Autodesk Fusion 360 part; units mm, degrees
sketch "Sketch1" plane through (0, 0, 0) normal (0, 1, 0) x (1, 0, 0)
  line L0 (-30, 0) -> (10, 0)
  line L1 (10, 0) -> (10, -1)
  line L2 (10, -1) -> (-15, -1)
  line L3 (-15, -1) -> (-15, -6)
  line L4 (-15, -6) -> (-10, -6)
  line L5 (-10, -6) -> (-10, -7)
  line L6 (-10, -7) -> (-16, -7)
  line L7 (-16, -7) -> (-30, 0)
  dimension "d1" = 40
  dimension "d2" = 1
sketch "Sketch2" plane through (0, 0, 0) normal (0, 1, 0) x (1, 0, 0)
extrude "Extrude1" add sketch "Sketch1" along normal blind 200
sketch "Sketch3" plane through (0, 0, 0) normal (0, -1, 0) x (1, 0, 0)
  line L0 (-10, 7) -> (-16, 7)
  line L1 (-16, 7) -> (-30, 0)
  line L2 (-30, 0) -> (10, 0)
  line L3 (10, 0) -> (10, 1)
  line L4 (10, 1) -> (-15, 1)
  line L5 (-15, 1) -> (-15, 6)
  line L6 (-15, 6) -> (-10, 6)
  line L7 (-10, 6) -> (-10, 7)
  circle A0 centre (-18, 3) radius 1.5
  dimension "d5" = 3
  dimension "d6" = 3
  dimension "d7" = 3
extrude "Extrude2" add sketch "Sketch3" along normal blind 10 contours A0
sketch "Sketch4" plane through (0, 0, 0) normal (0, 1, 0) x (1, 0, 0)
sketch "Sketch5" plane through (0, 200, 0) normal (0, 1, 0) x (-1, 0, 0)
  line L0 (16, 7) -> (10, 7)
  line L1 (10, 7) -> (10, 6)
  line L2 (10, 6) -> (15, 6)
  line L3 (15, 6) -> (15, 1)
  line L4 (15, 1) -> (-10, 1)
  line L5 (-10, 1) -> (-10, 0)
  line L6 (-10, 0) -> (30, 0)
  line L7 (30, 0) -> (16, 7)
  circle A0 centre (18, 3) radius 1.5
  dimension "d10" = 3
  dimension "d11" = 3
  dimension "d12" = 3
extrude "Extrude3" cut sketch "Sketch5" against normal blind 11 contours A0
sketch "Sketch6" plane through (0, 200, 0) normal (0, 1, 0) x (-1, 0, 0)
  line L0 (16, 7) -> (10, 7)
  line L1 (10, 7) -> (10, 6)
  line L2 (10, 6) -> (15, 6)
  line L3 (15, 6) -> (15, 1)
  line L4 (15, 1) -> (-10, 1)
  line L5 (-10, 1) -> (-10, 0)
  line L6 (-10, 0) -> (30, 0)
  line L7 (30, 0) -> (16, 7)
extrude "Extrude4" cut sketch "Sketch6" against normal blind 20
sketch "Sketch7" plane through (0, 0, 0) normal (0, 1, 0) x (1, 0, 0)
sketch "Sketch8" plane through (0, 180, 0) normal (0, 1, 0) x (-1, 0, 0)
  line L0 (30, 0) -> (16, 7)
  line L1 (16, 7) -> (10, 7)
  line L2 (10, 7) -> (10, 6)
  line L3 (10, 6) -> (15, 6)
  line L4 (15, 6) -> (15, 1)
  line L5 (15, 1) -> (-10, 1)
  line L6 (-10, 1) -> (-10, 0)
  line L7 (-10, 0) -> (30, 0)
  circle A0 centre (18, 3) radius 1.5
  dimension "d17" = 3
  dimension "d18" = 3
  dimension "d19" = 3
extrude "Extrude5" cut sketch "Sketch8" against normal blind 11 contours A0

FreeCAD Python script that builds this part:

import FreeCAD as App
import Part
import Sketcher

V = App.Vector
Q = App.Units.Quantity

doc = App.newDocument("Part")
body = doc.addObject("PartDesign::Body", "Body")

sketch1 = body.newObject("Sketcher::SketchObject", "Sketch")
sketch1.AttachmentSupport = (doc.getObject("XZ_Plane"), [""])
sketch1.MapMode = "FlatFace"
sketch1.addGeometry([
    Part.LineSegment(V(10, 0, 0), V(-30, 0, 0)),
    Part.LineSegment(V(-30, 0, 0), V(-16, 7, 0)),
    Part.LineSegment(V(-16, 7, 0), V(-10, 7, 0)),
    Part.LineSegment(V(-10, 7, 0), V(-10, 6, 0)),
    Part.LineSegment(V(-10, 6, 0), V(-15, 6, 0)),
    Part.LineSegment(V(-15, 6, 0), V(-15, 1, 0)),
    Part.LineSegment(V(-15, 1, 0), V(10, 1, 0)),
    Part.LineSegment(V(10, 1, 0), V(10, 0, 0)),
], False)
sketch1.addConstraint([
    Sketcher.Constraint("Coincident", 0, 2, 1, 1),
    Sketcher.Constraint("Coincident", 1, 2, 2, 1),
    Sketcher.Constraint("Coincident", 2, 2, 3, 1),
    Sketcher.Constraint("Coincident", 3, 2, 4, 1),
    Sketcher.Constraint("Coincident", 4, 2, 5, 1),
    Sketcher.Constraint("Coincident", 5, 2, 6, 1),
    Sketcher.Constraint("Coincident", 6, 2, 7, 1),
    Sketcher.Constraint("Coincident", 7, 2, 0, 1),
    Sketcher.Constraint("Horizontal", 0),
    Sketcher.Constraint("Horizontal", 2),
    Sketcher.Constraint("Vertical", 3),
    Sketcher.Constraint("Horizontal", 4),
    Sketcher.Constraint("Vertical", 5),
    Sketcher.Constraint("Horizontal", 6),
    Sketcher.Constraint("Vertical", 7),
    Sketcher.Constraint("PointOnObject", 0, 2, -1),
    Sketcher.Constraint("Equal", 4, 5),
    Sketcher.Constraint("Equal", 3, 7),
    Sketcher.Constraint("DistanceX", 0, 2, 0, 1, Q("40 mm")),
    Sketcher.Constraint("DistanceY", 3, 2, 3, 1, Q("1 mm")),
    Sketcher.Constraint("DistanceX", 1, 2, 4, 2, Q("1 mm")),
    Sketcher.Constraint("DistanceX", 2, 1, 2, 2, Q("6 mm")),
    Sketcher.Constraint("DistanceX", 6, 1, 6, 2, Q("25 mm")),
    Sketcher.Constraint("DistanceX", 0, 2, -1, 1, Q("30 mm")),
])
pad1 = body.newObject("PartDesign::Pad", "Pad")
pad1.Profile = sketch1
pad1.Length = 200
pad1.Reversed = True

sketch2 = body.newObject("Sketcher::SketchObject", "Sketch001")
sketch2.AttachmentSupport = (doc.getObject("XZ_Plane"), [""])
sketch2.MapMode = "FlatFace"
sketch2.addGeometry(Part.Circle(V(-18, 3, 0), V(0, 0, 1), 1.5), False)
sketch2.addConstraint([
    Sketcher.Constraint("Diameter", 0, Q("3 mm")),
    Sketcher.Constraint("DistanceY", -1, 1, 0, 3, Q("3 mm")),
    Sketcher.Constraint("DistanceX", 0, 3, -1, 1, Q("18 mm")),
])
pad2 = body.newObject("PartDesign::Pad", "Pad001")
pad2.Profile = sketch2
pad2.Length = 10

sketch3 = body.newObject("Sketcher::SketchObject", "Sketch002")
sketch3.AttachmentSupport = (doc.getObject("XZ_Plane"), [""])
sketch3.MapMode = "FlatFace"
sketch3.AttachmentOffset = App.Placement(V(0, 0, -200), App.Rotation())
sketch3.addGeometry(Part.Circle(V(-18, 3, 0), V(0, 0, 1), 1.5), False)
sketch3.addConstraint([
    Sketcher.Constraint("Diameter", 0, Q("3 mm")),
    Sketcher.Constraint("DistanceY", -1, 1, 0, 3, Q("3 mm")),
    Sketcher.Constraint("DistanceX", 0, 3, -1, 1, Q("18 mm")),
])
pocket1 = body.newObject("PartDesign::Pocket", "Pocket")
pocket1.Profile = sketch3
pocket1.Length = 11
pocket1.Reversed = True

sketch4 = body.newObject("Sketcher::SketchObject", "Sketch003")
sketch4.AttachmentSupport = (doc.getObject("XZ_Plane"), [""])
sketch4.MapMode = "FlatFace"
sketch4.AttachmentOffset = App.Placement(V(0, 0, -200), App.Rotation())
sketch4.addGeometry([
    Part.LineSegment(V(-30, 0, 0), V(-16, 7, 0)),
    Part.LineSegment(V(-16, 7, 0), V(-10, 7, 0)),
    Part.LineSegment(V(-10, 7, 0), V(-10, 6, 0)),
    Part.LineSegment(V(-10, 6, 0), V(-15, 6, 0)),
    Part.LineSegment(V(-15, 6, 0), V(-15, 1, 0)),
    Part.LineSegment(V(-15, 1, 0), V(10, 1, 0)),
    Part.LineSegment(V(10, 1, 0), V(10, 0, 0)),
    Part.LineSegment(V(10, 0, 0), V(-30, 0, 0)),
], False)
sketch4.addConstraint([
    Sketcher.Constraint("Coincident", 0, 2, 1, 1),
    Sketcher.Constraint("Coincident", 1, 2, 2, 1),
    Sketcher.Constraint("Coincident", 2, 2, 3, 1),
    Sketcher.Constraint("Coincident", 3, 2, 4, 1),
    Sketcher.Constraint("Coincident", 4, 2, 5, 1),
    Sketcher.Constraint("Coincident", 5, 2, 6, 1),
    Sketcher.Constraint("Coincident", 6, 2, 7, 1),
    Sketcher.Constraint("Coincident", 7, 2, 0, 1),
    Sketcher.Constraint("Horizontal", 1),
    Sketcher.Constraint("Vertical", 2),
    Sketcher.Constraint("Horizontal", 3),
    Sketcher.Constraint("Vertical", 4),
    Sketcher.Constraint("Horizontal", 5),
    Sketcher.Constraint("Vertical", 6),
    Sketcher.Constraint("Horizontal", 7),
    Sketcher.Constraint("PointOnObject", 6, 2, -1),
    Sketcher.Constraint("Equal", 3, 4),
    Sketcher.Constraint("Equal", 2, 6),
    Sketcher.Constraint("DistanceX", 1, 1, 1, 2, Q("6 mm")),
    Sketcher.Constraint("DistanceX", 3, 2, 3, 1, Q("5 mm")),
    Sketcher.Constraint("DistanceX", 5, 1, 5, 2, Q("25 mm")),
    Sketcher.Constraint("DistanceX", 7, 2, 7, 1, Q("40 mm")),
    Sketcher.Constraint("DistanceY", 2, 2, 2, 1, Q("1 mm")),
    Sketcher.Constraint("DistanceX", 0, 2, -1, 1, Q("16 mm")),
])
pocket2 = body.newObject("PartDesign::Pocket", "Pocket001")
pocket2.Profile = sketch4
pocket2.Length = 20
pocket2.Reversed = True

sketch5 = body.newObject("Sketcher::SketchObject", "Sketch004")
sketch5.AttachmentSupport = (doc.getObject("XZ_Plane"), [""])
sketch5.MapMode = "FlatFace"
sketch5.AttachmentOffset = App.Placement(V(0, 0, -180), App.Rotation())
sketch5.addGeometry(Part.Circle(V(-18, 3, 0), V(0, 0, 1), 1.5), False)
sketch5.addConstraint([
    Sketcher.Constraint("Diameter", 0, Q("3 mm")),
    Sketcher.Constraint("DistanceY", -1, 1, 0, 3, Q("3 mm")),
    Sketcher.Constraint("DistanceX", 0, 3, -1, 1, Q("18 mm")),
])
pocket3 = body.newObject("PartDesign::Pocket", "Pocket002")
pocket3.Profile = sketch5
pocket3.Length = 11
pocket3.Reversed = True

doc.recompute()
